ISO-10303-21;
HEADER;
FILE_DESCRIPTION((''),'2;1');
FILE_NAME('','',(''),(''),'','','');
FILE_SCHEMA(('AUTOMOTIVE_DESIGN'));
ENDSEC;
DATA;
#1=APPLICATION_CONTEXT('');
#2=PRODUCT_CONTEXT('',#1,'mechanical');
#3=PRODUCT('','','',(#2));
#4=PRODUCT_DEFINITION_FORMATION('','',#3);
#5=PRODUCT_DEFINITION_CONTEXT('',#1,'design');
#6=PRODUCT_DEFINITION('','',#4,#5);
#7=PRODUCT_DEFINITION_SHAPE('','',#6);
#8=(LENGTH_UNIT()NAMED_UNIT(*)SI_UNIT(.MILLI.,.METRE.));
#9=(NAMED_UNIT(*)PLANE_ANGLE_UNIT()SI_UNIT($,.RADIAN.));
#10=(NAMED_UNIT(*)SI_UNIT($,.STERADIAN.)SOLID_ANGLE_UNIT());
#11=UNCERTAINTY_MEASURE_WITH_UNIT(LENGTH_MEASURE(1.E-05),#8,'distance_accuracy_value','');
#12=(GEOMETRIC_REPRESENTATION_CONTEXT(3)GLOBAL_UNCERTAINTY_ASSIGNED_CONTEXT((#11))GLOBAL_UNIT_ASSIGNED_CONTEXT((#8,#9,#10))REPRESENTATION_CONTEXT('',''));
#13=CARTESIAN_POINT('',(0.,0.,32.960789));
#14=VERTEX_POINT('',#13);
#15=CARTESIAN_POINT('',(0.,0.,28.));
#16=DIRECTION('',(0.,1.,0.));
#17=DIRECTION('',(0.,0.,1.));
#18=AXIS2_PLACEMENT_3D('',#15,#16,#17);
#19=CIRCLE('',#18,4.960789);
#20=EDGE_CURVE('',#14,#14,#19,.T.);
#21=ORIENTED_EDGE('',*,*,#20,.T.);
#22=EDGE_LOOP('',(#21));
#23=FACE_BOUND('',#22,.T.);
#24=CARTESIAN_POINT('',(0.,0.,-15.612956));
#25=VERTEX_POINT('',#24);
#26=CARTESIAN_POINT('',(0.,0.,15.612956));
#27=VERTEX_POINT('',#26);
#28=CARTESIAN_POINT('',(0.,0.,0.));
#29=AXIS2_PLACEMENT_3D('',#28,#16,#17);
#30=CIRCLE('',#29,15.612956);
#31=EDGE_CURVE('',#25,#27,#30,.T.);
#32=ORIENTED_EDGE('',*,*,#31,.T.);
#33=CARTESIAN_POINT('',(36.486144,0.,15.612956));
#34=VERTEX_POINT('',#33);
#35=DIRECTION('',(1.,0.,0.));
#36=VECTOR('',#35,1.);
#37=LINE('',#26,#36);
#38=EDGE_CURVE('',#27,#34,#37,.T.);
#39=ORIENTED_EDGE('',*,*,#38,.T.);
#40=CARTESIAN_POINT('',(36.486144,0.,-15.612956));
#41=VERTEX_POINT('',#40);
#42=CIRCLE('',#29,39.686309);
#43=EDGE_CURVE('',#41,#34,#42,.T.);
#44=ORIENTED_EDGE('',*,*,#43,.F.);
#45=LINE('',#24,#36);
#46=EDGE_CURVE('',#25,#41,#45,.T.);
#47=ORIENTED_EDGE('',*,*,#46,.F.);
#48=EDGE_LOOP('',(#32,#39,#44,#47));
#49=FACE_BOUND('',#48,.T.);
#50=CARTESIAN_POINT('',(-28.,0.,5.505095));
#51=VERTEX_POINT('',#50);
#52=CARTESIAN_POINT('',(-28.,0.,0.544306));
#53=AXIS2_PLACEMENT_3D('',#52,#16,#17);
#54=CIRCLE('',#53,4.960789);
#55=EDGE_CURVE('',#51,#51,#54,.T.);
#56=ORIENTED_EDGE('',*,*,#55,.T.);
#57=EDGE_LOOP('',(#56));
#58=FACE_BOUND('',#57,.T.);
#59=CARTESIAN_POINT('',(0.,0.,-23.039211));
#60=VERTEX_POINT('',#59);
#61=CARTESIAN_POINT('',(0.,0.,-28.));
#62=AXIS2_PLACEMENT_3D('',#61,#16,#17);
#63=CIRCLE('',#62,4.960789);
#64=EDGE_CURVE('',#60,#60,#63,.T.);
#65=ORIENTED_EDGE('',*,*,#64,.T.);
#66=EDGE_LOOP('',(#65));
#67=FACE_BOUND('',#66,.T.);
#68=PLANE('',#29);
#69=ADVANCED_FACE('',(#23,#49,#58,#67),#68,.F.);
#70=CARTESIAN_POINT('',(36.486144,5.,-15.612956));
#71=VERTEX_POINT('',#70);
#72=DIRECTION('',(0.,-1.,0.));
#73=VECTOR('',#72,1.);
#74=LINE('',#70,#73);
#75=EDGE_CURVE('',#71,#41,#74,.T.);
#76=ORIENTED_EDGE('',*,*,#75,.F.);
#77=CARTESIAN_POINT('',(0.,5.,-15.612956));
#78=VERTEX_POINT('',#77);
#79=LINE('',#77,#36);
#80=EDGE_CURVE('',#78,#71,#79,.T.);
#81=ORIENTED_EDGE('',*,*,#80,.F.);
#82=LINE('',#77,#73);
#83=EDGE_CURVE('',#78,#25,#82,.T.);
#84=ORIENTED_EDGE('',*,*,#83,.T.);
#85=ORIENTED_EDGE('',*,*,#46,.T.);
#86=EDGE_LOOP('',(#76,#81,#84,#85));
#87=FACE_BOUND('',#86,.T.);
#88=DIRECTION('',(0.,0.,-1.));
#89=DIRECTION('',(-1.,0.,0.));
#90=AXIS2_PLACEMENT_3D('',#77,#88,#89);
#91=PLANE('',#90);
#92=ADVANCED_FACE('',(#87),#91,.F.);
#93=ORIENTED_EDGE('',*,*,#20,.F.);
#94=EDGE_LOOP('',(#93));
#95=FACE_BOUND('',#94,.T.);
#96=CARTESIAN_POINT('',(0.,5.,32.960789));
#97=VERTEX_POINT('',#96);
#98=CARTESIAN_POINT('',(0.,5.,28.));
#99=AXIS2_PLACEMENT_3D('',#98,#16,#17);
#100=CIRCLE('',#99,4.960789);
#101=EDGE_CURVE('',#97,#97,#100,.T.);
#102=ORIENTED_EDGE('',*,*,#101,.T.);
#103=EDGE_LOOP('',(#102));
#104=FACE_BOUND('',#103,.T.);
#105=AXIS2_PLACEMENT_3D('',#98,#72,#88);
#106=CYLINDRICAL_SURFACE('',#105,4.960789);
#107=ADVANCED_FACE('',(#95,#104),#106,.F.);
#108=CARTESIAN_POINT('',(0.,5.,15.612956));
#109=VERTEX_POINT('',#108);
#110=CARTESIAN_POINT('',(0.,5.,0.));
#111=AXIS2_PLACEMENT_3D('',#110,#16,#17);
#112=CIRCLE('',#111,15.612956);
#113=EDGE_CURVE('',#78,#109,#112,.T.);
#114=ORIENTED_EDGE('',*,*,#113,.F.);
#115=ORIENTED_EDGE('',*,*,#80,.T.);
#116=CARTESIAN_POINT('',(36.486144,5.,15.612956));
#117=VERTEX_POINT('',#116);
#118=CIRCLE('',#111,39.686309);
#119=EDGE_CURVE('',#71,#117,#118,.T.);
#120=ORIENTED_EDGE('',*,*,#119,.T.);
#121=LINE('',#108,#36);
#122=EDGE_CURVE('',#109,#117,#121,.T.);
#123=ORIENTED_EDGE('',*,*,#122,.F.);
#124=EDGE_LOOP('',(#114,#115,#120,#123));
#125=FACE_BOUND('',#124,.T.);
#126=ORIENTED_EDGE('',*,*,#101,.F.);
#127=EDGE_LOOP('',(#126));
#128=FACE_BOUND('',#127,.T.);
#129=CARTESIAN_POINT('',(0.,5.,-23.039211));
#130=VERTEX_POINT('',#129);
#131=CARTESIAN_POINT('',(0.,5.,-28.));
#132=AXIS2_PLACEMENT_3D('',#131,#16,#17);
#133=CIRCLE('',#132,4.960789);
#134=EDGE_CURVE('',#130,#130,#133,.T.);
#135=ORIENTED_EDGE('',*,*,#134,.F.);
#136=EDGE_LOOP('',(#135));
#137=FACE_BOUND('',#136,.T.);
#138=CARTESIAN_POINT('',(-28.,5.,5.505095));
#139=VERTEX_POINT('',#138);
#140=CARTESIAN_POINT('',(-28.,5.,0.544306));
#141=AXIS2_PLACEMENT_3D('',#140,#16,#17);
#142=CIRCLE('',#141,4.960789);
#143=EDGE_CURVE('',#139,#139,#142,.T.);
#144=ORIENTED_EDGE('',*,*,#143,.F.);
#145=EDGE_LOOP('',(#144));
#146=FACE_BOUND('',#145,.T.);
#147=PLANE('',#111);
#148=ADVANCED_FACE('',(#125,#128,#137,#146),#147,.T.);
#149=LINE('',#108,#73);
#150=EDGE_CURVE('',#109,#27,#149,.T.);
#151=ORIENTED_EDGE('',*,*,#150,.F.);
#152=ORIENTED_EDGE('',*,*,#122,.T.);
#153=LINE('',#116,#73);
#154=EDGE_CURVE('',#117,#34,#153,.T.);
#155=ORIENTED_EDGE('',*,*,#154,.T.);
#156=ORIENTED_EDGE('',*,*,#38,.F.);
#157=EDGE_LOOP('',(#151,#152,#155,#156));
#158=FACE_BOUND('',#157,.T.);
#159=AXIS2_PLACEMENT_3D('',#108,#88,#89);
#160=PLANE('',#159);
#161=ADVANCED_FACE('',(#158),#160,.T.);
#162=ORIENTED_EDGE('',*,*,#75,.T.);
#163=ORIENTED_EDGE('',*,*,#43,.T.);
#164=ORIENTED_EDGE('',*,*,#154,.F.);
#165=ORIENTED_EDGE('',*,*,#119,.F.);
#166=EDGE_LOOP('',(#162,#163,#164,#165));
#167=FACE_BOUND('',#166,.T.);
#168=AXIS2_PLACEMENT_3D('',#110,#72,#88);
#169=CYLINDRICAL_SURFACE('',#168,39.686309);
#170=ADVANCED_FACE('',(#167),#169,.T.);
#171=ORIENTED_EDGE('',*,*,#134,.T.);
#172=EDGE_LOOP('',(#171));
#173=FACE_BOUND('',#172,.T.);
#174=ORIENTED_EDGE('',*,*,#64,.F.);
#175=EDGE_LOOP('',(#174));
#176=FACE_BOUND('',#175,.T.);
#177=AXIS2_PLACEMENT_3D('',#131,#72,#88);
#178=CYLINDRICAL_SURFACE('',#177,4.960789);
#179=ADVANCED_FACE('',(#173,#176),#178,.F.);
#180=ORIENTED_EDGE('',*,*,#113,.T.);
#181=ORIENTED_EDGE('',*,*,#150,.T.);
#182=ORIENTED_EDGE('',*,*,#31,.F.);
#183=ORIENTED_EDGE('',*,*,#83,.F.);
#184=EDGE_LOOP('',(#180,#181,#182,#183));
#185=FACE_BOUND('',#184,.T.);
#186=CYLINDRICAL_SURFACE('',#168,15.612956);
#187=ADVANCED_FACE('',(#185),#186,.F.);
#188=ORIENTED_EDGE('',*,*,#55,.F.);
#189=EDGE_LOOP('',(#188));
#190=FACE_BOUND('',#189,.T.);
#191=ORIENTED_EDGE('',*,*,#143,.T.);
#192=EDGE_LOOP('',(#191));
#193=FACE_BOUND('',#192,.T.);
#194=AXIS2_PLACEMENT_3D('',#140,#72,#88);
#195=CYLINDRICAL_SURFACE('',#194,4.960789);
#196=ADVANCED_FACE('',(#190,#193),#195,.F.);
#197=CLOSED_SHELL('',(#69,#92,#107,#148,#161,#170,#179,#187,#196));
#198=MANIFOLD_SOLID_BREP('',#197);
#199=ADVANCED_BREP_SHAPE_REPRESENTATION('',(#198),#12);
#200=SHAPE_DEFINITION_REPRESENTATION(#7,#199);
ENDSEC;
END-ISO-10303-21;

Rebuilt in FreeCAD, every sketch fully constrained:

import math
import FreeCAD as App
import Part
import Sketcher

doc = App.newDocument("Part")
body = doc.addObject("PartDesign::Body", "Body")

sketch1 = doc.addObject("Sketcher::SketchObject", "Sketch")
body.addObject(sketch1)
sketch1.AttachmentSupport = (doc.XZ_Plane, [""])
sketch1.MapMode = "FlatFace"
sketch1.addGeometry([
    Part.ArcOfCircle(Part.Circle(App.Vector(0, 0, 0), App.Vector(0, 0, 1), 15.6), math.radians(90), math.radians(270)),
    Part.LineSegment(App.Vector(0, -15.6, 0), App.Vector(36.5, -15.6, 0)),
    Part.ArcOfCircle(Part.Circle(App.Vector(0, 0, 0), App.Vector(0, 0, 1), 39.7), math.radians(23), math.radians(337)),
    Part.LineSegment(App.Vector(36.5, 15.6, 0), App.Vector(0, 15.6, 0)),
    Part.Circle(App.Vector(-28, 0.5, 0), App.Vector(0, 0, 1), 5),
    Part.Circle(App.Vector(0, 28, 0), App.Vector(0, 0, 1), 5),
    Part.Circle(App.Vector(0, -28, 0), App.Vector(0, 0, 1), 5),
], False)
sketch1.addConstraint([
    Sketcher.Constraint("Tangent", 0, 2, 1, 1),
    Sketcher.Constraint("Coincident", 1, 2, 2, 2),
    Sketcher.Constraint("Coincident", 2, 1, 3, 1),
    Sketcher.Constraint("Tangent", 3, 2, 0, 1),
    Sketcher.Constraint("Horizontal", 1),
    Sketcher.Constraint("Horizontal", 3),
    Sketcher.Constraint("Coincident", 0, 3, -1, 1),
    Sketcher.Constraint("Coincident", 2, 3, -1, 1),
    Sketcher.Constraint("Equal", 4, 5),
    Sketcher.Constraint("Equal", 5, 6),
    Sketcher.Constraint("Symmetric", 5, 3, 6, 3, -1, 1),
    Sketcher.Constraint("PointOnObject", 5, 3, -2),
    Sketcher.Constraint("DistanceX", 4, 3, -1, 1, 28.0),
    Sketcher.Constraint("DistanceY", -1, 1, 5, 3, 28.0),
    Sketcher.Constraint("Radius", 2, 39.686309),
    Sketcher.Constraint("Diameter", 4, 9.921577),
    Sketcher.Constraint("Radius", 0, 15.612956),
    Sketcher.Constraint("DistanceY", 4, 3, 3, 2, 15.06865),
])
pad1 = doc.addObject("PartDesign::Pad", "Pad")
body.addObject(pad1)
pad1.Profile = sketch1
pad1.Length = 5
pad1.Reversed = True

doc.recompute()
